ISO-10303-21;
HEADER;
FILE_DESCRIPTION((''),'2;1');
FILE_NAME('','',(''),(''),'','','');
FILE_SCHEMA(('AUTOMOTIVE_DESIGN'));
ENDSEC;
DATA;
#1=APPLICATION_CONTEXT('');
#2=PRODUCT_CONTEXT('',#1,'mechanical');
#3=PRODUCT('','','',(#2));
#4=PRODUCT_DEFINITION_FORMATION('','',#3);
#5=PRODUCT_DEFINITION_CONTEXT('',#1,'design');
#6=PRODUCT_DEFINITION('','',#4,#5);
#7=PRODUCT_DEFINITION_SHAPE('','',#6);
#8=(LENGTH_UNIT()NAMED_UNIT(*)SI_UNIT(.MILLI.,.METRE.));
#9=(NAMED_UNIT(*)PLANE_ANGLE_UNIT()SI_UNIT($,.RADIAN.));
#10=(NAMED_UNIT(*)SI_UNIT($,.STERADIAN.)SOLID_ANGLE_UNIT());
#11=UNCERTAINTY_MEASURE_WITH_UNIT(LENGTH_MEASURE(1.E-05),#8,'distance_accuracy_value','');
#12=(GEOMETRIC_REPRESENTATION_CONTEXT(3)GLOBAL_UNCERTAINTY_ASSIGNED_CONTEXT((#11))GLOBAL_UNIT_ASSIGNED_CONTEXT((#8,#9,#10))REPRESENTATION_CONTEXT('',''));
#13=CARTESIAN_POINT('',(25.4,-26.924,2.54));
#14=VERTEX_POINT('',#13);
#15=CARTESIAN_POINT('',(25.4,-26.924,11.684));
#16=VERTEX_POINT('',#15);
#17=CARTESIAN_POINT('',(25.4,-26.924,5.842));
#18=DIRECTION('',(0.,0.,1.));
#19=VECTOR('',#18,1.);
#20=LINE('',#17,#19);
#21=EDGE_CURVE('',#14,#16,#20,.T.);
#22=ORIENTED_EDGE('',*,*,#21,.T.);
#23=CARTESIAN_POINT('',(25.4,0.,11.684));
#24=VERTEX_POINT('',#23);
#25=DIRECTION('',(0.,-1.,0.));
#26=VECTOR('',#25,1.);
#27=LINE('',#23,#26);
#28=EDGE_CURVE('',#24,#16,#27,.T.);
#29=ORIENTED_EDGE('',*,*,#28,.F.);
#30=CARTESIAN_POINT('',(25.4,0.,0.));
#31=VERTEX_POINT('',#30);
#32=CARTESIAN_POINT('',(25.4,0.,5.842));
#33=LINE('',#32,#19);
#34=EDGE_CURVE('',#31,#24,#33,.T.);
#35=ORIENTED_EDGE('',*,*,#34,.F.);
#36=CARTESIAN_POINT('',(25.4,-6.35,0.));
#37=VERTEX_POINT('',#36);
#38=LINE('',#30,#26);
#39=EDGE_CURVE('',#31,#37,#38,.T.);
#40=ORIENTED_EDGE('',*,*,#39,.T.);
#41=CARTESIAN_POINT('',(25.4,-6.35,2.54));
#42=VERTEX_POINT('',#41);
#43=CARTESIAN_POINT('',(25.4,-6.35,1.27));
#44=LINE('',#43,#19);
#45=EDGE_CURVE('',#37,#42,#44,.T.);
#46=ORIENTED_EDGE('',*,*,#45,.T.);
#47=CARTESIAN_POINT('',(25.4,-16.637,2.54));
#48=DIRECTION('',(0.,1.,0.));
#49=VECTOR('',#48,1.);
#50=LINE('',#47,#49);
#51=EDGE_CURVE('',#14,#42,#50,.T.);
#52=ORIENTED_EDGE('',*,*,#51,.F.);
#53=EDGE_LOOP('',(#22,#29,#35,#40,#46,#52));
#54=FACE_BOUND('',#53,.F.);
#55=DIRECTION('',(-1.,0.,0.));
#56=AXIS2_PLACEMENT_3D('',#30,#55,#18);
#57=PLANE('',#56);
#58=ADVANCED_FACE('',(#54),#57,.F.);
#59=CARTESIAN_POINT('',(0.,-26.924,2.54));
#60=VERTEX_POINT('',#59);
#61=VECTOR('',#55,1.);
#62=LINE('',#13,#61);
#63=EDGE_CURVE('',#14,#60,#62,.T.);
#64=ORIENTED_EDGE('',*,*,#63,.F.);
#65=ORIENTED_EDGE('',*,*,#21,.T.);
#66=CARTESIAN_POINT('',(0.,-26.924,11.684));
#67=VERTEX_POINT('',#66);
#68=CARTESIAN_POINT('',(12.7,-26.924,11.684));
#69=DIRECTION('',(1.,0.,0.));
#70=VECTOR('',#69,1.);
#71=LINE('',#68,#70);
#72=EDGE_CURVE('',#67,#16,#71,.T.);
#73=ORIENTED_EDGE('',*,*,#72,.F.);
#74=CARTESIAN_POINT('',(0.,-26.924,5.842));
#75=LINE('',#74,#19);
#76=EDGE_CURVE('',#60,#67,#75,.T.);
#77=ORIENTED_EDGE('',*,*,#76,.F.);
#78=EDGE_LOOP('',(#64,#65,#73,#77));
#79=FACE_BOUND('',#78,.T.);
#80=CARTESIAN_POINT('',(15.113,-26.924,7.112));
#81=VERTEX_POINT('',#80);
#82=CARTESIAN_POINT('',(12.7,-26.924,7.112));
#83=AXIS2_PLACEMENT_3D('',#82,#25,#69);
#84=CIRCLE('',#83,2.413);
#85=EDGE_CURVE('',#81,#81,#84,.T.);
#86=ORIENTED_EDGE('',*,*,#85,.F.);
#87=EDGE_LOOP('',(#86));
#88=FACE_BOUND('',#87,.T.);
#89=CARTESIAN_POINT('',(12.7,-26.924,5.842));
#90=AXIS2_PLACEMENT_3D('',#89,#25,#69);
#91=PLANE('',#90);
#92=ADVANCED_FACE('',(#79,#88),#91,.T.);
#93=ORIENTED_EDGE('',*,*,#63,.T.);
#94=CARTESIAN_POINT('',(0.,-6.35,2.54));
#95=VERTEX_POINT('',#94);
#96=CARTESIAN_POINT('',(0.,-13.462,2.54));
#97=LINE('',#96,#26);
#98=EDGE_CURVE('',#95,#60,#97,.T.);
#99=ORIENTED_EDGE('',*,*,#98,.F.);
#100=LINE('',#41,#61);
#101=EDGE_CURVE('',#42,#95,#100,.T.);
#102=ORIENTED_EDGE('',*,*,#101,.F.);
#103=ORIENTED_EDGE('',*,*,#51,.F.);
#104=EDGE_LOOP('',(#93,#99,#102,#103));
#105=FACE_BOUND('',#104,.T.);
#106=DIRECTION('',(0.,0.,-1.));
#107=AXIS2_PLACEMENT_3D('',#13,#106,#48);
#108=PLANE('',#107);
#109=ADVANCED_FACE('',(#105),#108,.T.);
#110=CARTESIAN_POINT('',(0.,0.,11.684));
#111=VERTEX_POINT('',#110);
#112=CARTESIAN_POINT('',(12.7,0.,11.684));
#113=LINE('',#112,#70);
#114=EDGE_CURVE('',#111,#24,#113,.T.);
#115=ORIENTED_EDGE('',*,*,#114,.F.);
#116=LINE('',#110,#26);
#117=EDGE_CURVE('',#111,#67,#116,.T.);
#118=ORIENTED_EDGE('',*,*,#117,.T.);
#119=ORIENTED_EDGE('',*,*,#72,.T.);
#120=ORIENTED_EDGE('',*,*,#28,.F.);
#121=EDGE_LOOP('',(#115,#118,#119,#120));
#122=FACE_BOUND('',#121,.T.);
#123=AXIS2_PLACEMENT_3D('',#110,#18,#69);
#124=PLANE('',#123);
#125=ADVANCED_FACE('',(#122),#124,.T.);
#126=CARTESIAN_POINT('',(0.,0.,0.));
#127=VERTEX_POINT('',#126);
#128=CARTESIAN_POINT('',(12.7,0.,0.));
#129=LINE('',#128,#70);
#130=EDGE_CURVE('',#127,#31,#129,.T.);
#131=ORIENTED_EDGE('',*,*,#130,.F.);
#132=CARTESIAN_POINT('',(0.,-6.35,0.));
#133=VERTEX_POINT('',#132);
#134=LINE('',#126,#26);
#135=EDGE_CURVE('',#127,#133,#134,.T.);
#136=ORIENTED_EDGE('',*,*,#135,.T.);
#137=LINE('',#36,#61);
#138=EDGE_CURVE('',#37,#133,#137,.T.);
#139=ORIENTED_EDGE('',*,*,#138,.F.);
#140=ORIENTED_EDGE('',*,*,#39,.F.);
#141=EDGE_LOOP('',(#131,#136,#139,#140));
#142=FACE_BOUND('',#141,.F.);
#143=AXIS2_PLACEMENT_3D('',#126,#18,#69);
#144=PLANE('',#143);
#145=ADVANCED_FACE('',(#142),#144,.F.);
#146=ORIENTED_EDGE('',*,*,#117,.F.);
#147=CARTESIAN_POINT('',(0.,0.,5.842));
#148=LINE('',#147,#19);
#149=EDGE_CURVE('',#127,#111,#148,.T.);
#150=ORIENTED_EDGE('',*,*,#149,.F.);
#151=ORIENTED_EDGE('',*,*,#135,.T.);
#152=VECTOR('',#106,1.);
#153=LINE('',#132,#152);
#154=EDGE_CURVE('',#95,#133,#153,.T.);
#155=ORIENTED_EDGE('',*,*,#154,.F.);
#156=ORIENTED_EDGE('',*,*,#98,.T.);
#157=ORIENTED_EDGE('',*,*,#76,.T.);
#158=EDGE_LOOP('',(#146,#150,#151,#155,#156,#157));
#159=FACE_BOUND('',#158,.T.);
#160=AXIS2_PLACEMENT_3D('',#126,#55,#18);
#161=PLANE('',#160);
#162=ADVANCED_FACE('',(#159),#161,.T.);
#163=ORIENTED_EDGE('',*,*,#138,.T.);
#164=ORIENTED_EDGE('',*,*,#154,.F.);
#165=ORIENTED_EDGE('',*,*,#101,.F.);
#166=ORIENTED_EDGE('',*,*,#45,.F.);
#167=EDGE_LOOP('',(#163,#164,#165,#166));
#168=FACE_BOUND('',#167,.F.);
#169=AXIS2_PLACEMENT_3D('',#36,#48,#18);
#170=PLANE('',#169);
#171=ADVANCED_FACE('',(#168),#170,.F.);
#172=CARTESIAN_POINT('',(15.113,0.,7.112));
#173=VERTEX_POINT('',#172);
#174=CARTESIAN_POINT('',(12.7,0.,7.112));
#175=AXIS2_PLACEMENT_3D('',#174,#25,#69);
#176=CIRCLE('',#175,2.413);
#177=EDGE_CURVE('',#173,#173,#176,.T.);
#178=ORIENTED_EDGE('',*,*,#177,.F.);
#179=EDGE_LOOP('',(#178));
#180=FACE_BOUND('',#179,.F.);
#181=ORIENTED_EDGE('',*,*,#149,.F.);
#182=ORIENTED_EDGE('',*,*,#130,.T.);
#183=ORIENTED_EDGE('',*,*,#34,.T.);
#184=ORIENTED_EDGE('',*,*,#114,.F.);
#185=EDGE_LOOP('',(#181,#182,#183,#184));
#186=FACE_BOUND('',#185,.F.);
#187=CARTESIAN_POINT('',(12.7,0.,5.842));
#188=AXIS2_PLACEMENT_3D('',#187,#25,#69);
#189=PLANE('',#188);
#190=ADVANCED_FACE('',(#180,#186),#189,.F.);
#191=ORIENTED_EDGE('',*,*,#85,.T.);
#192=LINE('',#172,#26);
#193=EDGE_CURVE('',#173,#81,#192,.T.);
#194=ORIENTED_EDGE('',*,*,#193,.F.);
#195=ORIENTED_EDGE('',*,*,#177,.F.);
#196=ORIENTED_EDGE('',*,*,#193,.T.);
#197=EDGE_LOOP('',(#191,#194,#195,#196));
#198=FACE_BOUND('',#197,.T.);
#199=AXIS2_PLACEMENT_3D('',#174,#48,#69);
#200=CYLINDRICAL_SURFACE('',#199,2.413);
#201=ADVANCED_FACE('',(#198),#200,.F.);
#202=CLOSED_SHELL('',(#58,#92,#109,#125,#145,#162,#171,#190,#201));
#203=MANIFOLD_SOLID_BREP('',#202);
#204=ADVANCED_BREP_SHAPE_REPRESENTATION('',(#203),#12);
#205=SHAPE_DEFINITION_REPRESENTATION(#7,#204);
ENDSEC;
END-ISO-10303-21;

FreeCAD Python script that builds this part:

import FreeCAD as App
import Part
import Sketcher
from FreeCAD import Vector
Q = App.Units.Quantity

doc = App.newDocument("Part")
body = doc.addObject("PartDesign::Body", "Body")

# Sketch on XZ plane
sketch1 = doc.addObject("Sketcher::SketchObject", "Sketch")
body.addObject(sketch1)
sketch1.AttachmentSupport = (doc.XZ_Plane, [""])
sketch1.MapMode = "FlatFace"
sketch1.addGeometry([
    Part.LineSegment(Vector(0, 11.7, 0), Vector(0, 0, 0)),  # 0
    Part.LineSegment(Vector(0, 0, 0), Vector(25.4, 0, 0)),  # 1
    Part.LineSegment(Vector(25.4, 0, 0), Vector(25.4, 11.7, 0)),  # 2
    Part.LineSegment(Vector(25.4, 11.7, 0), Vector(0, 11.7, 0)),  # 3
    Part.Circle(Vector(12.7, 7.1, 0), Vector(0, 0, 1), 2.4),  # 4
], False)
sketch1.addConstraint([
    Sketcher.Constraint("Coincident", 0, 2, 1, 1),
    Sketcher.Constraint("Coincident", 1, 2, 2, 1),
    Sketcher.Constraint("Coincident", 2, 2, 3, 1),
    Sketcher.Constraint("Coincident", 3, 2, 0, 1),
    Sketcher.Constraint("Vertical", 0),
    Sketcher.Constraint("Horizontal", 1),
    Sketcher.Constraint("Vertical", 2),
    Sketcher.Constraint("Horizontal", 3),
    Sketcher.Constraint("Coincident", 0, 2, -1, 1),
    Sketcher.Constraint("Diameter", 4, Q("0.19 in")),
    Sketcher.Constraint("DistanceX", 1, 1, 1, 2, Q("1 in")),
    Sketcher.Constraint("DistanceY", 0, 2, 0, 1, Q("0.46 in")),
    Sketcher.Constraint("DistanceX", -1, 1, 4, 3, Q("0.5 in")),
    Sketcher.Constraint("DistanceY", -1, 1, 4, 3, Q("0.28 in")),
])
pad1 = doc.addObject("PartDesign::Pad", "Pad")
body.addObject(pad1)
pad1.Profile = sketch1
pad1.Length = Q("1.06 in")

# Sketch on YZ plane
sketch2 = doc.addObject("Sketcher::SketchObject", "Sketch001")
body.addObject(sketch2)
sketch2.AttachmentSupport = (doc.YZ_Plane, [""])
sketch2.MapMode = "FlatFace"
sketch2.AttachmentOffset = App.Placement(Vector(0, 0, 1 * 25.4), App.Rotation())
sketch2.addGeometry([
    Part.LineSegment(Vector(-26.9, 2.5, 0), Vector(-26.9, 0, 0)),
    Part.LineSegment(Vector(-26.9, 0, 0), Vector(-6.3, 0, 0)),
    Part.LineSegment(Vector(-6.3, 0, 0), Vector(-6.3, 2.5, 0)),
    Part.LineSegment(Vector(-6.3, 2.5, 0), Vector(-26.9, 2.5, 0)),
], False)
sketch2.addConstraint([
    Sketcher.Constraint("Coincident", 0, 2, 1, 1),
    Sketcher.Constraint("Coincident", 1, 2, 2, 1),
    Sketcher.Constraint("Coincident", 2, 2, 3, 1),
    Sketcher.Constraint("Coincident", 3, 2, 0, 1),
    Sketcher.Constraint("Vertical", 0),
    Sketcher.Constraint("Horizontal", 1),
    Sketcher.Constraint("Vertical", 2),
    Sketcher.Constraint("Horizontal", 3),
    Sketcher.Constraint("PointOnObject", 0, 2, -1),
    Sketcher.Constraint("DistanceY", 0, 2, 0, 1, Q("0.1 in")),
    Sketcher.Constraint("DistanceX", 1, 1, 1, 2, Q("0.81 in")),
    Sketcher.Constraint("DistanceX", 0, 2, -1, 1, Q("1.06 in")),
])
pocket1 = doc.addObject("PartDesign::Pocket", "Pocket")
body.addObject(pocket1)
pocket1.Profile = sketch2
pocket1.Type = "ThroughAll"

doc.recompute()
